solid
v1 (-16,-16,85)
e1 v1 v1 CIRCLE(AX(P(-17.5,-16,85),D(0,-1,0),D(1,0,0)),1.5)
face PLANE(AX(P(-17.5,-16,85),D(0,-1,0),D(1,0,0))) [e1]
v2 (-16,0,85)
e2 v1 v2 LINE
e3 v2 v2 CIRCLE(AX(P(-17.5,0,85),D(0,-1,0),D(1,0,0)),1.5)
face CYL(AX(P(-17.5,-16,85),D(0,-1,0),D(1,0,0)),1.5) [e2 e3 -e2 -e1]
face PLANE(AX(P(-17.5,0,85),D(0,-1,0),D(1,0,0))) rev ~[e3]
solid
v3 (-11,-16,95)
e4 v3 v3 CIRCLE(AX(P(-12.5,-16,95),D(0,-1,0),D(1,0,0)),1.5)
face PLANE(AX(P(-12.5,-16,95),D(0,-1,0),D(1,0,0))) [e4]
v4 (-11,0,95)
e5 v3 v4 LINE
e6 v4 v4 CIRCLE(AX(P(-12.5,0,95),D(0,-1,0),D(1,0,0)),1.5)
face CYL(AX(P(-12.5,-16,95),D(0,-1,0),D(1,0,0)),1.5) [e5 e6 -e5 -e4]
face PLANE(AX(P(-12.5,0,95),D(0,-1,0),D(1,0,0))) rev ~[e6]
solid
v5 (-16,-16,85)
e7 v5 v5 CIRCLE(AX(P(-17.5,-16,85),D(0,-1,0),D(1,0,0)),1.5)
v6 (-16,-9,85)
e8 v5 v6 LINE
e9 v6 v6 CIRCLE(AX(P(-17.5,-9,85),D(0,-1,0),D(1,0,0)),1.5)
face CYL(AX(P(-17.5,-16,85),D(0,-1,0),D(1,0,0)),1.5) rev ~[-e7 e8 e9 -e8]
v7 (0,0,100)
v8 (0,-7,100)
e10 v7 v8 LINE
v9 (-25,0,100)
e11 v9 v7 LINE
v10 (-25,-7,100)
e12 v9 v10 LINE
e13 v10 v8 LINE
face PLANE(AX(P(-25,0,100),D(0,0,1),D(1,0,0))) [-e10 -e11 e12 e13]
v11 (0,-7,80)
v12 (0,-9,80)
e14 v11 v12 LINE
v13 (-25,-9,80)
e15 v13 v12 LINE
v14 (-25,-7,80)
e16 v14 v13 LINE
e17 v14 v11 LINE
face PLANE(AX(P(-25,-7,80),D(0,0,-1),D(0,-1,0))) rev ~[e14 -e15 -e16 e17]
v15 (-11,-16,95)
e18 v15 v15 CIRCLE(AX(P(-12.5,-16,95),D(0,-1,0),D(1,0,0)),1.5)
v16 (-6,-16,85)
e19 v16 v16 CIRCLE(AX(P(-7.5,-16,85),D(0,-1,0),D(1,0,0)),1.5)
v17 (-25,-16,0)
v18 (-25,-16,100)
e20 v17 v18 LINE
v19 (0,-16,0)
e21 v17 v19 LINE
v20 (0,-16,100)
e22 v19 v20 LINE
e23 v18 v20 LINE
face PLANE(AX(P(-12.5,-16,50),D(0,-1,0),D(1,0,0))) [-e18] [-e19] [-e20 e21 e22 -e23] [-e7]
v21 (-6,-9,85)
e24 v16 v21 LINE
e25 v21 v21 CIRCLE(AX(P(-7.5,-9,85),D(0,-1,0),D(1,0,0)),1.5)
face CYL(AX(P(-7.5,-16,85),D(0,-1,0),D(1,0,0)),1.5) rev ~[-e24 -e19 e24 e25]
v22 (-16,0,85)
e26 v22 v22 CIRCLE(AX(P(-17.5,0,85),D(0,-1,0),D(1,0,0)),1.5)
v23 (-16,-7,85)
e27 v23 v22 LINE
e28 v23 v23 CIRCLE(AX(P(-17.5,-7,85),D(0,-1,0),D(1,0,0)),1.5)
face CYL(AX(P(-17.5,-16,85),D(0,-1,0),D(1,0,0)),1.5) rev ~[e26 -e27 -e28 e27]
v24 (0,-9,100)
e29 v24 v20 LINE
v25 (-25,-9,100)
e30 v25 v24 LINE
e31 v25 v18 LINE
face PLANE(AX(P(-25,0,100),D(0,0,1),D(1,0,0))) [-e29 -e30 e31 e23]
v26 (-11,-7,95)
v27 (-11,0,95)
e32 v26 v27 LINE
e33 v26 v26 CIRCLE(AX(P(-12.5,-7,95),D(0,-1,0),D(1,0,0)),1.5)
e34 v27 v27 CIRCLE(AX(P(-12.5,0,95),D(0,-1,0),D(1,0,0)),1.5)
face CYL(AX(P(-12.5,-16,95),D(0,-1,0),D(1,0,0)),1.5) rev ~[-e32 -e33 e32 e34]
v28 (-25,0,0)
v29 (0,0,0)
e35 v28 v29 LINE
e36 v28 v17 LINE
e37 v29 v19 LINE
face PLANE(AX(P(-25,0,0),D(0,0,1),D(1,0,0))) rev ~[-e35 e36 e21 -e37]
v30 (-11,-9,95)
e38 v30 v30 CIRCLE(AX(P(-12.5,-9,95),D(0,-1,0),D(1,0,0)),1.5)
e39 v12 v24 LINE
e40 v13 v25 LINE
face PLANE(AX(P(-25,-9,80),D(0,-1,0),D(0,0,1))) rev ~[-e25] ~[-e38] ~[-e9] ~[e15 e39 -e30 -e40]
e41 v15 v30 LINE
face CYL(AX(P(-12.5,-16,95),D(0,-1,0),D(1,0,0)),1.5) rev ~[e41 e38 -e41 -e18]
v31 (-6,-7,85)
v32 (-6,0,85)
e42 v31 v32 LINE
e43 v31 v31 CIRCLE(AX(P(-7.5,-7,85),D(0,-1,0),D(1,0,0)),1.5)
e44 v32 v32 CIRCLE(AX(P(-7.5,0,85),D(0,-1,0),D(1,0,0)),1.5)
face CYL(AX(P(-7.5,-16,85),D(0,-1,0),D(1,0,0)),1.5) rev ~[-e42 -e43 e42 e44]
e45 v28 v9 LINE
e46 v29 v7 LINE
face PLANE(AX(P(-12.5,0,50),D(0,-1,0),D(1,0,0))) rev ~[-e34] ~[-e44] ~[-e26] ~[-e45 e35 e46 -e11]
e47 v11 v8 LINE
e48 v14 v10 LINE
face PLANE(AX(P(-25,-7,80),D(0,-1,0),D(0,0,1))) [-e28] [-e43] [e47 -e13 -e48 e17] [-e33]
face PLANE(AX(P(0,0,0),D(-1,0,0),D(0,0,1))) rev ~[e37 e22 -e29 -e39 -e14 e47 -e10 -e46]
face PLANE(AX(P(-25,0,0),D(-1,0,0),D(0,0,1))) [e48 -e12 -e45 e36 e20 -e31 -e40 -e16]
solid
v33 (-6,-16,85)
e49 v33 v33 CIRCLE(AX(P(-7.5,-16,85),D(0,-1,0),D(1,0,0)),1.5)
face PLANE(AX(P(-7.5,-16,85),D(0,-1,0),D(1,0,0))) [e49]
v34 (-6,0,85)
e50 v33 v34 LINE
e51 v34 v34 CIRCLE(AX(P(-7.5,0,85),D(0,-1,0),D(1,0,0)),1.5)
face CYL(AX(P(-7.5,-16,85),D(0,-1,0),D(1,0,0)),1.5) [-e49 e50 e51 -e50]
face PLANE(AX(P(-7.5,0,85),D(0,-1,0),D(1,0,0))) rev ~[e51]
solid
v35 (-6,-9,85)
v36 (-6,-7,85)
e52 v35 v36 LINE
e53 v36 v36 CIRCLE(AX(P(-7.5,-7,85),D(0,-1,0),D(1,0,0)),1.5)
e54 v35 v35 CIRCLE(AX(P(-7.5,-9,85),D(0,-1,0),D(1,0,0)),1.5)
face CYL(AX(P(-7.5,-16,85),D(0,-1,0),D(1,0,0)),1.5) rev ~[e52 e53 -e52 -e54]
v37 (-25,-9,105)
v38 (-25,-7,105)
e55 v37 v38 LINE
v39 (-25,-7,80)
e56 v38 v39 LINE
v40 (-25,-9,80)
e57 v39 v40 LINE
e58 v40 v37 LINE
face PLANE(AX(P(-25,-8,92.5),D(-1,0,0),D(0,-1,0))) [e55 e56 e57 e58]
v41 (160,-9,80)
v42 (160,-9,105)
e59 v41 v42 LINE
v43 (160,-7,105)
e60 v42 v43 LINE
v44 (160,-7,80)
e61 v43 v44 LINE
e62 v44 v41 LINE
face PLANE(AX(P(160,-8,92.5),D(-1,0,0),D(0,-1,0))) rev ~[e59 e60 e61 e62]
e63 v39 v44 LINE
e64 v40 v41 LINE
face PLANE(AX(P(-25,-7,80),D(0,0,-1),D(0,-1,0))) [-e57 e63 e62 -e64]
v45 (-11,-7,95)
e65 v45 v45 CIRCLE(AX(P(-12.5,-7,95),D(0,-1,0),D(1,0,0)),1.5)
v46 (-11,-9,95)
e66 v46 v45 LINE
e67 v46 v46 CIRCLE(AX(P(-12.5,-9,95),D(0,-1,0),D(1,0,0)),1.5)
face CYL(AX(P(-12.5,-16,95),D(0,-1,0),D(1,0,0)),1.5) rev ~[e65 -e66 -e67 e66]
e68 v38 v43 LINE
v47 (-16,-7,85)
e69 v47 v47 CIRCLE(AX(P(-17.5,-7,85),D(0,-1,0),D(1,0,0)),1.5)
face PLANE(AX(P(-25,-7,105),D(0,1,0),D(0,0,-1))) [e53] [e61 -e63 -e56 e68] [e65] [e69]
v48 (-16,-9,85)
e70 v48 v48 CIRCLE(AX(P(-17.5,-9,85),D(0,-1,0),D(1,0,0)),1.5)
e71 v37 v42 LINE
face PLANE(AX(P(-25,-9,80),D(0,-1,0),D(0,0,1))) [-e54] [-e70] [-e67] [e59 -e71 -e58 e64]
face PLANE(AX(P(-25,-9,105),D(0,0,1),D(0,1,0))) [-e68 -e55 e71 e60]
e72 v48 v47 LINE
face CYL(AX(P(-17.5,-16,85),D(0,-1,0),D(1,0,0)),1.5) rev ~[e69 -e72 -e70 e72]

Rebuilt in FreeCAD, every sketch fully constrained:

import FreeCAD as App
import Part
import Sketcher

V = App.Vector
Q = App.Units.Quantity

doc = App.newDocument("Part")
params = doc.addObject("Spreadsheet::Sheet", "Params")
for row, (alias, value) in enumerate([
    ("sketch1_width", "25 mm"),
    ("sketch1_height", "100 mm"),
    ("pad1_length", "16 mm"),
    ("sketch2_width", "2 mm"),
    ("sketch2_height", "20 mm"),
    ("sketch3_width", "2 mm"),
    ("sketch3_height", "25 mm"),
    ("pad2_length", "185 mm"),
    ("sketch4_diameter", "3 mm"),
    ("pad3_length", "16 mm"),
    ("sketch5_diameter", "3 mm"),
    ("pad4_length", "16 mm"),
    ("sketch6_diameter", "3 mm"),
    ("pad5_length", "16 mm"),
    ("sketch7_diameter", "3 mm"),
    ("pad6_length", "16 mm"),
], start=1):
    params.set(f"A{row}", alias)
    params.set(f"B{row}", "=" + value)
    params.setAlias(f"B{row}", alias)

body = doc.addObject("PartDesign::Body", "Body")

# Sketch on XZ plane
sketch1 = body.newObject("Sketcher::SketchObject", "Sketch")
sketch1.AttachmentSupport = (doc.getObject("XZ_Plane"), [""])
sketch1.MapMode = "FlatFace"
sketch1.addGeometry([
    Part.LineSegment(V(-25, 100, 0), V(-25, 0, 0)),
    Part.LineSegment(V(-25, 0, 0), V(0, 0, 0)),
    Part.LineSegment(V(0, 0, 0), V(0, 100, 0)),
    Part.LineSegment(V(0, 100, 0), V(-25, 100, 0)),
], False)
sketch1.addConstraint([
    Sketcher.Constraint("Coincident", 0, 2, 1, 1),
    Sketcher.Constraint("Coincident", 1, 2, 2, 1),
    Sketcher.Constraint("Coincident", 2, 2, 3, 1),
    Sketcher.Constraint("Coincident", 3, 2, 0, 1),
    Sketcher.Constraint("Vertical", 0),
    Sketcher.Constraint("Horizontal", 1),
    Sketcher.Constraint("Vertical", 2),
    Sketcher.Constraint("Horizontal", 3),
    Sketcher.Constraint("Coincident", 1, 2, -1, 1),
    Sketcher.Constraint("DistanceX", 1, 1, 1, 2, Q("25 mm")),
    Sketcher.Constraint("DistanceY", 0, 2, 0, 1, Q("100 mm")),
])
sketch1.setExpression("Constraints[9]", "Params.sketch1_width")
sketch1.setExpression("Constraints[10]", "Params.sketch1_height")
pad1 = body.newObject("PartDesign::Pad", "Pad")
pad1.Profile = sketch1
pad1.setExpression("Length", "Params.pad1_length")

# Sketch on YZ plane
sketch2 = body.newObject("Sketcher::SketchObject", "Sketch001")
sketch2.AttachmentSupport = (doc.getObject("YZ_Plane"), [""])
sketch2.MapMode = "FlatFace"
sketch2.AttachmentOffset = App.Placement(V(0, 0, -25), App.Rotation())
sketch2.addGeometry([
    Part.LineSegment(V(-7, 100, 0), V(-7, 80, 0)),
    Part.LineSegment(V(-7, 80, 0), V(-9, 80, 0)),
    Part.LineSegment(V(-9, 80, 0), V(-9, 100, 0)),
    Part.LineSegment(V(-9, 100, 0), V(-7, 100, 0)),
], False)
sketch2.addConstraint([
    Sketcher.Constraint("Coincident", 0, 2, 1, 1),
    Sketcher.Constraint("Coincident", 1, 2, 2, 1),
    Sketcher.Constraint("Coincident", 2, 2, 3, 1),
    Sketcher.Constraint("Coincident", 3, 2, 0, 1),
    Sketcher.Constraint("Vertical", 0),
    Sketcher.Constraint("Horizontal", 1),
    Sketcher.Constraint("Vertical", 2),
    Sketcher.Constraint("Horizontal", 3),
    Sketcher.Constraint("DistanceX", 1, 2, 1, 1, Q("2 mm")),
    Sketcher.Constraint("DistanceY", 0, 2, 0, 1, Q("20 mm")),
    Sketcher.Constraint("DistanceX", 0, 2, -1, 1, Q("7 mm")),
    Sketcher.Constraint("DistanceY", -1, 1, 0, 2, Q("80 mm")),
])
sketch2.setExpression("Constraints[8]", "Params.sketch2_width")
sketch2.setExpression("Constraints[9]", "Params.sketch2_height")
pocket1 = body.newObject("PartDesign::Pocket", "Pocket")
pocket1.Profile = sketch2
pocket1.Type = "ThroughAll"
pocket1.Reversed = True
body2 = doc.addObject("PartDesign::Body", "Body001")

# Sketch on YZ plane
sketch3 = body2.newObject("Sketcher::SketchObject", "Sketch002")
sketch3.AttachmentSupport = (doc.getObject("YZ_Plane001"), [""])
sketch3.MapMode = "FlatFace"
sketch3.AttachmentOffset = App.Placement(V(0, 0, -25), App.Rotation())
sketch3.addGeometry([
    Part.LineSegment(V(-7, 80, 0), V(-9, 80, 0)),
    Part.LineSegment(V(-9, 80, 0), V(-9, 105, 0)),
    Part.LineSegment(V(-9, 105, 0), V(-7, 105, 0)),
    Part.LineSegment(V(-7, 105, 0), V(-7, 80, 0)),
], False)
sketch3.addConstraint([
    Sketcher.Constraint("Coincident", 0, 2, 1, 1),
    Sketcher.Constraint("Coincident", 1, 2, 2, 1),
    Sketcher.Constraint("Coincident", 2, 2, 3, 1),
    Sketcher.Constraint("Coincident", 3, 2, 0, 1),
    Sketcher.Constraint("Horizontal", 0),
    Sketcher.Constraint("Vertical", 1),
    Sketcher.Constraint("Horizontal", 2),
    Sketcher.Constraint("Vertical", 3),
    Sketcher.Constraint("DistanceX", 0, 2, 0, 1, Q("2 mm")),
    Sketcher.Constraint("DistanceY", 1, 1, 1, 2, Q("25 mm")),
    Sketcher.Constraint("DistanceX", 0, 2, -1, 1, Q("9 mm")),
    Sketcher.Constraint("DistanceY", -1, 1, 0, 2, Q("80 mm")),
])
sketch3.setExpression("Constraints[8]", "Params.sketch3_width")
sketch3.setExpression("Constraints[9]", "Params.sketch3_height")
pad2 = body2.newObject("PartDesign::Pad", "Pad001")
pad2.Profile = sketch3
pad2.setExpression("Length", "Params.pad2_length")
body3 = doc.addObject("PartDesign::Body", "Body002")
body3.AllowCompound = True

# Sketch on XZ plane
sketch4 = body3.newObject("Sketcher::SketchObject", "Sketch003")
sketch4.AttachmentSupport = (doc.getObject("XZ_Plane002"), [""])
sketch4.MapMode = "FlatFace"
sketch4.AttachmentOffset = App.Placement(V(0, 0, 16), App.Rotation())
sketch4.addGeometry([
    Part.Circle(V(-7.5, 85, 0), V(0, 0, 1), 1.5),
    Part.Circle(V(-12.5, 95, 0), V(0, 0, 1), 1.5),
    Part.Circle(V(-17.5, 85, 0), V(0, 0, 1), 1.5),
], False)
sketch4.addConstraint([
    Sketcher.Constraint("Equal", 0, 1),
    Sketcher.Constraint("Equal", 1, 2),
    Sketcher.Constraint("Horizontal", 0, 3, 2, 3),
    Sketcher.Constraint("Diameter", 0, Q("3 mm")),
    Sketcher.Constraint("DistanceY", -1, 1, 0, 3, Q("85 mm")),
    Sketcher.Constraint("DistanceY", -1, 1, 1, 3, Q("95 mm")),
    Sketcher.Constraint("DistanceX", 1, 3, 0, 3, Q("5 mm")),
    Sketcher.Constraint("DistanceX", 2, 3, 0, 3, Q("10 mm")),
    Sketcher.Constraint("DistanceX", 0, 3, -1, 1, Q("7.5 mm")),
])
sketch4.setExpression("Constraints[3]", "Params.sketch4_diameter")
pad3 = body3.newObject("PartDesign::Pad", "Pad002")
pad3.Profile = sketch4
pad3.setExpression("Length", "Params.pad3_length")
pad3.Reversed = True
doc.recompute()

body4 = doc.addObject("PartDesign::Body", "Body003")
body4.BaseFeature = body3
boolean = body.newObject("PartDesign::Boolean", "Boolean")
boolean.Type = "Cut"
boolean.addObjects([body4])
doc.recompute()

boolean2 = body2.newObject("PartDesign::Boolean", "Boolean001")
boolean2.Type = "Cut"
boolean2.addObjects([body3])
body5 = doc.addObject("PartDesign::Body", "Body004")

# Sketch on XZ plane
sketch5 = body5.newObject("Sketcher::SketchObject", "Sketch004")
sketch5.AttachmentSupport = (doc.getObject("XZ_Plane004"), [""])
sketch5.MapMode = "FlatFace"
sketch5.AttachmentOffset = App.Placement(V(0, 0, 16), App.Rotation())
sketch5.addGeometry(Part.Circle(V(-12.5, 95, 0), V(0, 0, 1), 1.5), False)
sketch5.addConstraint([
    Sketcher.Constraint("Diameter", 0, Q("3 mm")),
    Sketcher.Constraint("DistanceY", -1, 1, 0, 3, Q("95 mm")),
    Sketcher.Constraint("DistanceX", 0, 3, -1, 1, Q("12.5 mm")),
])
sketch5.setExpression("Constraints[0]", "Params.sketch5_diameter")
pad4 = body5.newObject("PartDesign::Pad", "Pad003")
pad4.Profile = sketch5
pad4.setExpression("Length", "Params.pad4_length")
pad4.Reversed = True
body6 = doc.addObject("PartDesign::Body", "Body005")

# Sketch on XZ plane
sketch6 = body6.newObject("Sketcher::SketchObject", "Sketch005")
sketch6.AttachmentSupport = (doc.getObject("XZ_Plane005"), [""])
sketch6.MapMode = "FlatFace"
sketch6.AttachmentOffset = App.Placement(V(0, 0, 16), App.Rotation())
sketch6.addGeometry(Part.Circle(V(-17.5, 85, 0), V(0, 0, 1), 1.5), False)
sketch6.addConstraint([
    Sketcher.Constraint("Diameter", 0, Q("3 mm")),
    Sketcher.Constraint("DistanceY", -1, 1, 0, 3, Q("85 mm")),
    Sketcher.Constraint("DistanceX", 0, 3, -1, 1, Q("17.5 mm")),
])
sketch6.setExpression("Constraints[0]", "Params.sketch6_diameter")
pad5 = body6.newObject("PartDesign::Pad", "Pad004")
pad5.Profile = sketch6
pad5.setExpression("Length", "Params.pad5_length")
pad5.Reversed = True
body7 = doc.addObject("PartDesign::Body", "Body006")

# Sketch on XZ plane
sketch7 = body7.newObject("Sketcher::SketchObject", "Sketch006")
sketch7.AttachmentSupport = (doc.getObject("XZ_Plane006"), [""])
sketch7.MapMode = "FlatFace"
sketch7.AttachmentOffset = App.Placement(V(0, 0, 16), App.Rotation())
sketch7.addGeometry(Part.Circle(V(-7.5, 85, 0), V(0, 0, 1), 1.5), False)
sketch7.addConstraint([
    Sketcher.Constraint("Diameter", 0, Q("3 mm")),
    Sketcher.Constraint("DistanceY", -1, 1, 0, 3, Q("85 mm")),
    Sketcher.Constraint("DistanceX", 0, 3, -1, 1, Q("7.5 mm")),
])
sketch7.setExpression("Constraints[0]", "Params.sketch7_diameter")
pad6 = body7.newObject("PartDesign::Pad", "Pad005")
pad6.Profile = sketch7
pad6.setExpression("Length", "Params.pad6_length")
pad6.Reversed = True

doc.recompute()
